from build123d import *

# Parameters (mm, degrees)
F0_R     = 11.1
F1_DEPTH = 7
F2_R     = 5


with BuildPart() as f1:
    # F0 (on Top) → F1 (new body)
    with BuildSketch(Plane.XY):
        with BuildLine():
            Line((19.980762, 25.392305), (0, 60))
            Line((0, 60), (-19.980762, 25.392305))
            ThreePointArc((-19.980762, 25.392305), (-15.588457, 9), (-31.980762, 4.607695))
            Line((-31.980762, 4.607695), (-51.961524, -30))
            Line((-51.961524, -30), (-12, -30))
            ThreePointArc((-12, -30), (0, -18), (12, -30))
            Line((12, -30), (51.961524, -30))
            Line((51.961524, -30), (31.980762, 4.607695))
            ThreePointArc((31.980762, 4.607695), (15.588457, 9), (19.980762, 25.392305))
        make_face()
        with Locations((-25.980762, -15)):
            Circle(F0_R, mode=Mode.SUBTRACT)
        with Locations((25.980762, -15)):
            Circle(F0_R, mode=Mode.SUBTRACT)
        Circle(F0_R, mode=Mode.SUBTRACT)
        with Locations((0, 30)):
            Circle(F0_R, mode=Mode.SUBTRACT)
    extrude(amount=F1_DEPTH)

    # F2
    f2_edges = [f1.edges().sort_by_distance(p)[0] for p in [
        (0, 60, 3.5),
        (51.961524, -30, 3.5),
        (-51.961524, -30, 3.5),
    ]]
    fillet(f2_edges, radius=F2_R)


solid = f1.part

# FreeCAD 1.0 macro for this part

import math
import FreeCAD as App
import Part
import Sketcher
Q = App.Units.Quantity


def edges_at(feature, points):
    """Names of the edges that pass closest to the given points."""
    edges = feature.Shape.Edges
    near = lambda p: min(range(len(edges)), key=lambda i: edges[i].distToShape(Part.Vertex(*p))[0])
    return sorted({f"Edge{near(p) + 1}" for p in points})

doc = App.newDocument("Part")
params = doc.addObject("Spreadsheet::Sheet", "Params")
for row, (alias, value) in enumerate([
    ("sketch1_radius", "12 mm"),
    ("sketch1_diameter", "22.2 mm"),
    ("pad1_length", "7 mm"),
    ("fillet_radius", "5 mm"),
], start=1):
    params.set(f"A{row}", alias)
    params.set(f"B{row}", "=" + value)
    params.setAlias(f"B{row}", alias)

body = doc.addObject("PartDesign::Body", "Body")

sketch1 = doc.addObject("Sketcher::SketchObject", "Sketch")
body.addObject(sketch1)
sketch1.AttachmentSupport = (doc.XY_Plane, [""])
sketch1.MapMode = "FlatFace"
sketch1.addGeometry([
    Part.LineSegment(App.Vector(19.980762, 25.392305, 0), App.Vector(0, 60, 0)),
    Part.LineSegment(App.Vector(0, 60, 0), App.Vector(-19.980762, 25.392305, 0)),
    Part.ArcOfCircle(Part.Circle(App.Vector(-25.980762, 15, 0), App.Vector(0, 0, 1), 12), math.radians(-120), math.radians(60)),
    Part.LineSegment(App.Vector(-31.980762, 4.607695, 0), App.Vector(-51.961524, -30, 0)),
    Part.LineSegment(App.Vector(-51.961524, -30, 0), App.Vector(-12, -30, 0)),
    Part.ArcOfCircle(Part.Circle(App.Vector(0, -30, 0), App.Vector(0, 0, 1), 12), math.radians(0), math.radians(180)),
    Part.LineSegment(App.Vector(12, -30, 0), App.Vector(51.961524, -30, 0)),
    Part.LineSegment(App.Vector(51.961524, -30, 0), App.Vector(31.980762, 4.607695, 0)),
    Part.ArcOfCircle(Part.Circle(App.Vector(25.980762, 15, 0), App.Vector(0, 0, 1), 12), math.radians(120), math.radians(300)),
    Part.Circle(App.Vector(-25.980762, -15, 0), App.Vector(0, 0, 1), 11.1),
    Part.Circle(App.Vector(25.980762, -15, 0), App.Vector(0, 0, 1), 11.1),
    Part.Circle(App.Vector(0, 0, 0), App.Vector(0, 0, 1), 11.1),
    Part.Circle(App.Vector(0, 30, 0), App.Vector(0, 0, 1), 11.1),
], False)
sketch1.addConstraint([
    Sketcher.Constraint("Coincident", 0, 2, 1, 1),
    Sketcher.Constraint("Coincident", 1, 2, 2, 2),
    Sketcher.Constraint("Coincident", 2, 1, 3, 1),
    Sketcher.Constraint("Coincident", 3, 2, 4, 1),
    Sketcher.Constraint("Coincident", 4, 2, 5, 2),
    Sketcher.Constraint("Coincident", 5, 1, 6, 1),
    Sketcher.Constraint("Coincident", 6, 2, 7, 1),
    Sketcher.Constraint("Coincident", 7, 2, 8, 2),
    Sketcher.Constraint("Coincident", 8, 1, 0, 1),
    Sketcher.Constraint("Horizontal", 4),
    Sketcher.Constraint("Horizontal", 6),
    Sketcher.Constraint("Coincident", 11, 3, -1, 1),
    Sketcher.Constraint("Equal", 2, 5),
    Sketcher.Constraint("Equal", 5, 8),
    Sketcher.Constraint("Equal", 9, 10),
    Sketcher.Constraint("Equal", 10, 11),
    Sketcher.Constraint("Equal", 11, 12),
    Sketcher.Constraint("Symmetric", 8, 3, 9, 3, -1, 1),
    Sketcher.Constraint("Symmetric", 2, 3, 10, 3, -1, 1),
    Sketcher.Constraint("Symmetric", 5, 3, 12, 3, -1, 1),
    Sketcher.Constraint("Symmetric", 2, 3, 8, 3, -2),
    Sketcher.Constraint("Symmetric", 4, 2, 5, 1, -2),
    Sketcher.Constraint("PointOnObject", 0, 2, -2),
    Sketcher.Constraint("Parallel", 1, 3),
    Sketcher.Constraint("Parallel", 0, 7),
    Sketcher.Constraint("Horizontal", 5, 3, 3, 2),
    Sketcher.Constraint("Horizontal", 2, 1, 7, 2),
    Sketcher.Constraint("Horizontal", 1, 2, 8, 1),
    Sketcher.Constraint("Equal", 1, 3),
    Sketcher.Constraint("Radius", 2, Q("12 mm")),
    Sketcher.Constraint("Diameter", 9, Q("22.2 mm")),
    Sketcher.Constraint("Angle", 0, Q("120 deg")),
    Sketcher.Constraint("DistanceY", -1, 1, 2, 3, Q("15 mm")),
    Sketcher.Constraint("DistanceY", 5, 3, -1, 1, Q("30 mm")),
    Sketcher.Constraint("DistanceY", -1, 1, 0, 2, Q("60 mm")),
    Sketcher.Constraint("DistanceX", 2, 3, 1, 2, Q("6 mm")),
])
sketch1.setExpression("Constraints[29]", "Params.sketch1_radius")
sketch1.setExpression("Constraints[30]", "Params.sketch1_diameter")
pad1 = doc.addObject("PartDesign::Pad", "Pad")
body.addObject(pad1)
pad1.Profile = sketch1
pad1.setExpression("Length", "Params.pad1_length")
doc.recompute()

fillet = doc.addObject("PartDesign::Fillet", "Fillet")
body.addObject(fillet)
fillet.Base = (pad1, edges_at(pad1, [(0, 60, 3.5), (51.962, -30, 3.5), (-51.962, -30, 3.5)]))
fillet.setExpression("Radius", "Params.fillet_radius")

doc.recompute()
